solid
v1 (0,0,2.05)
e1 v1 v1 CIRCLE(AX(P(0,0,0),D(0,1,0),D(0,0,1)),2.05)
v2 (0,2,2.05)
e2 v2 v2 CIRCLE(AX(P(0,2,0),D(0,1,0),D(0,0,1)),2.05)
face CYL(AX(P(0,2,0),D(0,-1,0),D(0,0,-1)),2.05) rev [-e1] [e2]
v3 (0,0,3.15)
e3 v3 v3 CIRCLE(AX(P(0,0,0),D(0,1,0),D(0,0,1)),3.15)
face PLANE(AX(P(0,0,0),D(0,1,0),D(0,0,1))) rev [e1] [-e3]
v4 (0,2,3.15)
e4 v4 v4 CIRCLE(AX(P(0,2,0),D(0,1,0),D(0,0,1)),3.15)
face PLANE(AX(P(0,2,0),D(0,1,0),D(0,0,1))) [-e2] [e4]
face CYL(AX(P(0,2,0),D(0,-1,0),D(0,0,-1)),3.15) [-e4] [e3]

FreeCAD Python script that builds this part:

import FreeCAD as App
import Part
import Sketcher
from FreeCAD import Vector

doc = App.newDocument("Part")
params = doc.addObject("Spreadsheet::Sheet", "Params")
for row, (alias, value) in enumerate([
    ("sketch1_diameter", "6.3 mm"),
    ("sketch1_diameter2", "4.1 mm"),
    ("pad1_length", "2 mm"),
], start=1):
    params.set(f"A{row}", alias)
    params.set(f"B{row}", "=" + value)
    params.setAlias(f"B{row}", alias)

body = doc.addObject("PartDesign::Body", "Body")

# Sketch on XZ plane
sketch1 = doc.addObject("Sketcher::SketchObject", "Sketch")
body.addObject(sketch1)
sketch1.AttachmentSupport = (doc.XZ_Plane, [""])
sketch1.MapMode = "FlatFace"
sketch1.addGeometry([
    Part.Circle(Vector(0, 0, 0), Vector(0, 0, 1), 3.1),
    Part.Circle(Vector(0, 0, 0), Vector(0, 0, 1), 2),
], False)
sketch1.addConstraint([
    Sketcher.Constraint("Coincident", 0, 3, -1, 1),
    Sketcher.Constraint("Coincident", 1, 3, -1, 1),
    Sketcher.Constraint("Diameter", 0, 6.3),
    Sketcher.Constraint("Diameter", 1, 4.1),
])
sketch1.setExpression("Constraints[2]", "Params.sketch1_diameter")
sketch1.setExpression("Constraints[3]", "Params.sketch1_diameter2")
pad1 = doc.addObject("PartDesign::Pad", "Pad")
body.addObject(pad1)
pad1.Profile = sketch1
pad1.setExpression("Length", "Params.pad1_length")
pad1.Reversed = True

doc.recompute()
